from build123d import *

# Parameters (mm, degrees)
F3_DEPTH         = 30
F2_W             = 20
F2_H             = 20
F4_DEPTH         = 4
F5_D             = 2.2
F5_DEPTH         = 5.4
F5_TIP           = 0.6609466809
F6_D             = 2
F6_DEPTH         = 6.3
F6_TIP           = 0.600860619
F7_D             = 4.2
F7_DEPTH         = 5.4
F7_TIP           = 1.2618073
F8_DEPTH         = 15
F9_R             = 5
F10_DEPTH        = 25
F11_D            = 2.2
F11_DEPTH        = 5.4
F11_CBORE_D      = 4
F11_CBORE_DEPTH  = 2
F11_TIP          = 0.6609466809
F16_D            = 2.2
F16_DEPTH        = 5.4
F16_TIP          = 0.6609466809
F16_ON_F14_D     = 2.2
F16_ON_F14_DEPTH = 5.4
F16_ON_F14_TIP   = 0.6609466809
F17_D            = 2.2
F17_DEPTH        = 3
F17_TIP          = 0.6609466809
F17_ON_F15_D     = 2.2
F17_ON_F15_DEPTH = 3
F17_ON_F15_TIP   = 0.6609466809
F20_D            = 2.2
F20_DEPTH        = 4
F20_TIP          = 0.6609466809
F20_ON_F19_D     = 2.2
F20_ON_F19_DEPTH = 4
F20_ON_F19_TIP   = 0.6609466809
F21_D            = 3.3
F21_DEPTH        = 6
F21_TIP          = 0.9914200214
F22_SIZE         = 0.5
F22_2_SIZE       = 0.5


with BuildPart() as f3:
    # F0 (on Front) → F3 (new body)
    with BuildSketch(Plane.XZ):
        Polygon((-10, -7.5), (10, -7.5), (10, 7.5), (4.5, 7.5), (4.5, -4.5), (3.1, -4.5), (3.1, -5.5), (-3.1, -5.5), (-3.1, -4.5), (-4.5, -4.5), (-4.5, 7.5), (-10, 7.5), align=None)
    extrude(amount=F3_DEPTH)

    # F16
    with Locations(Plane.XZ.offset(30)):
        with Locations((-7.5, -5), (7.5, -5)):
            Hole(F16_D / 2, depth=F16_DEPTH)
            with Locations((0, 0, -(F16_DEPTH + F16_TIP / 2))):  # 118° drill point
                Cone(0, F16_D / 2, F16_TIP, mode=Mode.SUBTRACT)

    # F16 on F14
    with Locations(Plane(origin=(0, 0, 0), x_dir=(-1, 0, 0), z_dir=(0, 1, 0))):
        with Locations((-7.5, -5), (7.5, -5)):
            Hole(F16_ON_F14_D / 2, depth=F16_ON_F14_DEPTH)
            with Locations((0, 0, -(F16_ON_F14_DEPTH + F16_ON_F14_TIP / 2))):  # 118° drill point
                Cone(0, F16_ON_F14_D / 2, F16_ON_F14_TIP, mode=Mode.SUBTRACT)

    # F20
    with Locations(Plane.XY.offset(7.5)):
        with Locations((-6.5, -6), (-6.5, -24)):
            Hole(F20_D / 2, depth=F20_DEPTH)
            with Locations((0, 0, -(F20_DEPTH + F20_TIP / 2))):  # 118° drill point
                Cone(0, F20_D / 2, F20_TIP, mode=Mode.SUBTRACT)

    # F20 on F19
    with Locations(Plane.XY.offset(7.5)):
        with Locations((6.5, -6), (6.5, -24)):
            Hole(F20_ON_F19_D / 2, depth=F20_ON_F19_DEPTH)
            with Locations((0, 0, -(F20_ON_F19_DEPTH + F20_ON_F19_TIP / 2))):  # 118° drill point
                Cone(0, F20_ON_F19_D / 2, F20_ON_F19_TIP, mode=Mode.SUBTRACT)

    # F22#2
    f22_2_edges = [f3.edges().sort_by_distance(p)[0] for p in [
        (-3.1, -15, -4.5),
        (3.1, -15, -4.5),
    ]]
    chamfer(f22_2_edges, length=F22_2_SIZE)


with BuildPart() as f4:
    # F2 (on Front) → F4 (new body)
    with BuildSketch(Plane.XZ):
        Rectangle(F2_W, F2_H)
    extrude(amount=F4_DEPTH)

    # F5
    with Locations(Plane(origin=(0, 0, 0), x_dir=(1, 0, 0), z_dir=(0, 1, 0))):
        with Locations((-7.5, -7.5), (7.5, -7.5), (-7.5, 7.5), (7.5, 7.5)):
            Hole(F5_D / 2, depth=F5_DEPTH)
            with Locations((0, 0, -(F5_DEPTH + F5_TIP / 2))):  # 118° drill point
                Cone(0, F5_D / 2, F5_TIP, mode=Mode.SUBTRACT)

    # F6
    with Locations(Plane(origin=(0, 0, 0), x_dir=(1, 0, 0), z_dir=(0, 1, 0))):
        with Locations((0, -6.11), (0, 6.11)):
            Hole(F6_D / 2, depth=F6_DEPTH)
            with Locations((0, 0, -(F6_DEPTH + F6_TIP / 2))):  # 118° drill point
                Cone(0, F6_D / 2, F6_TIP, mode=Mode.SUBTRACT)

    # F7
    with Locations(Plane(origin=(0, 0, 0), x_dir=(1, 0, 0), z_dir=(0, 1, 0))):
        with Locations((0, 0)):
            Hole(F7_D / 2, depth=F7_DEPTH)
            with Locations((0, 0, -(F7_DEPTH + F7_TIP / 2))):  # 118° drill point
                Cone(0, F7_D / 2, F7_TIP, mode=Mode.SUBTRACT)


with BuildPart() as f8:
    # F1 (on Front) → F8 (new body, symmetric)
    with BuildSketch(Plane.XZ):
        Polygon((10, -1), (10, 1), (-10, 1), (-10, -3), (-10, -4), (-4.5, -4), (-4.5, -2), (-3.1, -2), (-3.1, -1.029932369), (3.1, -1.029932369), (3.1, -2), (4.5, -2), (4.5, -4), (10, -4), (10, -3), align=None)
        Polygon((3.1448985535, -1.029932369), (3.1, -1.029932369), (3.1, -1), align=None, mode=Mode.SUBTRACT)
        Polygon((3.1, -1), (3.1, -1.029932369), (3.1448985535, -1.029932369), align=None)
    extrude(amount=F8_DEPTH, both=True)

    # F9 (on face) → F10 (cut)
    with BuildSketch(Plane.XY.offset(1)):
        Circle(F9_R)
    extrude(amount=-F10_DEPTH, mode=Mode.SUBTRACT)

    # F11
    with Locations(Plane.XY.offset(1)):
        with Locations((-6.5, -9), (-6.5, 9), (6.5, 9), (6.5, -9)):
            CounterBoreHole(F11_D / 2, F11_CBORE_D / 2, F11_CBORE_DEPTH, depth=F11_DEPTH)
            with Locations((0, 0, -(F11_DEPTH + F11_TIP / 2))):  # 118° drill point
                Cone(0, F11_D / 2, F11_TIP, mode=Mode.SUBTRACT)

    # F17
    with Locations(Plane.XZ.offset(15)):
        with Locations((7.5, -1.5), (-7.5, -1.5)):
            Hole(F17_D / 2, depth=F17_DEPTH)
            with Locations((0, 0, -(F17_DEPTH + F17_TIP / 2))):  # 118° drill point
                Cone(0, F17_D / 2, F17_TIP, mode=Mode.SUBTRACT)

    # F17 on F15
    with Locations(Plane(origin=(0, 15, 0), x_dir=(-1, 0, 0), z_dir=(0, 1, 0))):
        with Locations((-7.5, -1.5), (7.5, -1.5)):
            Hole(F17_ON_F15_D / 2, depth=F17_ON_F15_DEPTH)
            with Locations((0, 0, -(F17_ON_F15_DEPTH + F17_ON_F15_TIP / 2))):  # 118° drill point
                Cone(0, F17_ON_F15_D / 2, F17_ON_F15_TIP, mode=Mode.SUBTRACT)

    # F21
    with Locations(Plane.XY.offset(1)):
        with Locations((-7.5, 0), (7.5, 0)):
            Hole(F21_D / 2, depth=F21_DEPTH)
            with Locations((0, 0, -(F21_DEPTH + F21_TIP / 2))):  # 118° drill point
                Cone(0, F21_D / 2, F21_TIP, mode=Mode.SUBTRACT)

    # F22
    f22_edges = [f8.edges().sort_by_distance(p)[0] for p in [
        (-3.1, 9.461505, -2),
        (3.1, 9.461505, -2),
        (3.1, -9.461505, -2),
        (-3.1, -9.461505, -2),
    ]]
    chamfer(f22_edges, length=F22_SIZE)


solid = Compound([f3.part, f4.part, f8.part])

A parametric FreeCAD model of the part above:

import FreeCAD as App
import Part
import Sketcher
from FreeCAD import Vector


def edges_at(feature, points):
    """Names of the edges that pass closest to the given points."""
    edges = feature.Shape.Edges
    near = lambda p: min(range(len(edges)), key=lambda i: edges[i].distToShape(Part.Vertex(*p))[0])
    return sorted({f"Edge{near(p) + 1}" for p in points})


def add_polygon(sketch, points):
    """Adds a closed chain of lines whose ends are joined by coincident constraints."""
    first, n = sketch.GeometryCount, len(points)
    for a, b in zip(points, points[1:] + points[:1]):
        sketch.addGeometry(Part.LineSegment(App.Vector(*a, 0), App.Vector(*b, 0)), False)
    for i in range(n):
        sketch.addConstraint(Sketcher.Constraint("Coincident", first + i, 2, first + (i + 1) % n, 1))

doc = App.newDocument("Part")
body = doc.addObject("PartDesign::Body", "Body")

sketch1 = body.newObject("Sketcher::SketchObject", "Sketch")
sketch1.AttachmentSupport = (doc.getObject("XZ_Plane"), [""])
sketch1.MapMode = "FlatFace"
add_polygon(sketch1, [(-10, -7.5), (10, -7.5), (10, 7.5), (4.5, 7.5), (4.5, -4.5), (3.1, -4.5), (3.1, -5.5), (-3.1, -5.5), (-3.1, -4.5), (-4.5, -4.5), (-4.5, 7.5), (-10, 7.5)])
sketch1.addConstraint(Sketcher.Constraint("Horizontal", 0))
sketch1.addConstraint(Sketcher.Constraint("Vertical", 1))
sketch1.addConstraint(Sketcher.Constraint("Horizontal", 2))
sketch1.addConstraint(Sketcher.Constraint("Vertical", 3))
sketch1.addConstraint(Sketcher.Constraint("Horizontal", 4))
sketch1.addConstraint(Sketcher.Constraint("Vertical", 5))
sketch1.addConstraint(Sketcher.Constraint("Horizontal", 6))
sketch1.addConstraint(Sketcher.Constraint("Vertical", 7))
sketch1.addConstraint(Sketcher.Constraint("Horizontal", 8))
sketch1.addConstraint(Sketcher.Constraint("Vertical", 9))
sketch1.addConstraint(Sketcher.Constraint("Horizontal", 10))
sketch1.addConstraint(Sketcher.Constraint("Vertical", 11))
sketch1.addConstraint(Sketcher.Constraint("Symmetric", 0, 2, 10, 2, -1, 1))
sketch1.addConstraint(Sketcher.Constraint("Symmetric", 4, 2, 7, 2, -2))
sketch1.addConstraint(Sketcher.Constraint("Symmetric", 2, 2, 9, 2, -2))
sketch1.addConstraint(Sketcher.Constraint("DistanceX", 0, 1, 0, 2, 20.0))
sketch1.addConstraint(Sketcher.Constraint("DistanceY", 1, 1, 1, 2, 15.0))
sketch1.addConstraint(Sketcher.Constraint("DistanceY", 3, 2, 3, 1, 12.0))
sketch1.addConstraint(Sketcher.Constraint("DistanceY", 5, 2, 5, 1, 1.0))
sketch1.addConstraint(Sketcher.Constraint("DistanceX", 2, 2, 2, 1, 5.5))
sketch1.addConstraint(Sketcher.Constraint("DistanceX", 4, 2, 4, 1, 1.4))
pad1 = body.newObject("PartDesign::Pad", "Pad")
pad1.Profile = sketch1
pad1.Length = 30

sketch2 = body.newObject("Sketcher::SketchObject", "Sketch001")
sketch2.AttachmentSupport = (doc.getObject("XZ_Plane"), [""])
sketch2.MapMode = "FlatFace"
sketch2.AttachmentOffset = App.Placement(Vector(0, 0, 30), App.Rotation())
sketch2.addGeometry(Part.Circle(Vector(-7.5, -5, 0), Vector(0, 0, 1), 1.1), False)
sketch2.addGeometry(Part.Circle(Vector(7.5, -5, 0), Vector(0, 0, 1), 1.1), False)
sketch2.addConstraint(Sketcher.Constraint("Equal", 0, 1))
sketch2.addConstraint(Sketcher.Constraint("Symmetric", 0, 3, 1, 3, -2))
sketch2.addConstraint(Sketcher.Constraint("Diameter", 0, 2.2))
sketch2.addConstraint(Sketcher.Constraint("DistanceY", 0, 3, -1, 1, 5.0))
sketch2.addConstraint(Sketcher.Constraint("DistanceX", 0, 3, 1, 3, 15.0))
doc.recompute()
hole = body.newObject("PartDesign::Hole", "Hole")
hole.Profile = sketch2
hole.ThreadType = "None"
hole.Diameter = 2.2
hole.DepthType = "Dimension"
hole.Depth = 5.4
hole.DrillPoint = "Angled"
hole.DrillPointAngle = 118

sketch3 = body.newObject("Sketcher::SketchObject", "Sketch002")
sketch3.AttachmentSupport = (doc.getObject("XZ_Plane"), [""])
sketch3.MapMode = "FlatFace"
sketch3.addGeometry(Part.Circle(Vector(7.5, -5, 0), Vector(0, 0, 1), 1.1), False)
sketch3.addGeometry(Part.Circle(Vector(-7.5, -5, 0), Vector(0, 0, 1), 1.1), False)
sketch3.addConstraint(Sketcher.Constraint("Equal", 0, 1))
sketch3.addConstraint(Sketcher.Constraint("Symmetric", 0, 3, 1, 3, -2))
sketch3.addConstraint(Sketcher.Constraint("Diameter", 0, 2.2))
sketch3.addConstraint(Sketcher.Constraint("DistanceY", 0, 3, -1, 1, 5.0))
sketch3.addConstraint(Sketcher.Constraint("DistanceX", 1, 3, 0, 3, 15.0))
doc.recompute()
hole2 = body.newObject("PartDesign::Hole", "Hole001")
hole2.Profile = sketch3
hole2.ThreadType = "None"
hole2.Diameter = 2.2
hole2.DepthType = "Dimension"
hole2.Depth = 5.4
hole2.DrillPoint = "Angled"
hole2.DrillPointAngle = 118
hole2.Reversed = True

sketch4 = body.newObject("Sketcher::SketchObject", "Sketch003")
sketch4.AttachmentSupport = (doc.getObject("XY_Plane"), [""])
sketch4.MapMode = "FlatFace"
sketch4.AttachmentOffset = App.Placement(Vector(0, 0, 7.5), App.Rotation())
sketch4.addGeometry(Part.Circle(Vector(-6.5, -6, 0), Vector(0, 0, 1), 1.1), False)
sketch4.addGeometry(Part.Circle(Vector(-6.5, -24, 0), Vector(0, 0, 1), 1.1), False)
sketch4.addConstraint(Sketcher.Constraint("Equal", 0, 1))
sketch4.addConstraint(Sketcher.Constraint("Vertical", 0, 3, 1, 3))
sketch4.addConstraint(Sketcher.Constraint("Diameter", 0, 2.2))
sketch4.addConstraint(Sketcher.Constraint("DistanceY", 0, 3, -1, 1, 6.0))
sketch4.addConstraint(Sketcher.Constraint("DistanceY", 1, 3, -1, 1, 24.0))
sketch4.addConstraint(Sketcher.Constraint("DistanceX", 0, 3, -1, 1, 6.5))
doc.recompute()
hole3 = body.newObject("PartDesign::Hole", "Hole002")
hole3.Profile = sketch4
hole3.ThreadType = "None"
hole3.Diameter = 2.2
hole3.DepthType = "Dimension"
hole3.Depth = 4
hole3.DrillPoint = "Angled"
hole3.DrillPointAngle = 118

sketch5 = body.newObject("Sketcher::SketchObject", "Sketch004")
sketch5.AttachmentSupport = (doc.getObject("XY_Plane"), [""])
sketch5.MapMode = "FlatFace"
sketch5.AttachmentOffset = App.Placement(Vector(0, 0, 7.5), App.Rotation())
sketch5.addGeometry(Part.Circle(Vector(6.5, -6, 0), Vector(0, 0, 1), 1.1), False)
sketch5.addGeometry(Part.Circle(Vector(6.5, -24, 0), Vector(0, 0, 1), 1.1), False)
sketch5.addConstraint(Sketcher.Constraint("Equal", 0, 1))
sketch5.addConstraint(Sketcher.Constraint("Vertical", 0, 3, 1, 3))
sketch5.addConstraint(Sketcher.Constraint("Diameter", 0, 2.2))
sketch5.addConstraint(Sketcher.Constraint("DistanceY", 0, 3, -1, 1, 6.0))
sketch5.addConstraint(Sketcher.Constraint("DistanceY", 1, 3, -1, 1, 24.0))
sketch5.addConstraint(Sketcher.Constraint("DistanceX", -1, 1, 0, 3, 6.5))
doc.recompute()
hole4 = body.newObject("PartDesign::Hole", "Hole003")
hole4.Profile = sketch5
hole4.ThreadType = "None"
hole4.Diameter = 2.2
hole4.DepthType = "Dimension"
hole4.Depth = 4
hole4.DrillPoint = "Angled"
hole4.DrillPointAngle = 118
doc.recompute()

chamfer = body.newObject("PartDesign::Chamfer", "Chamfer")
chamfer.Base = (hole4, edges_at(hole4, [(-3.1, -15, -4.5), (3.1, -15, -4.5)]))
chamfer.Size = 0.5
body2 = doc.addObject("PartDesign::Body", "Body001")

sketch6 = body2.newObject("Sketcher::SketchObject", "Sketch005")
sketch6.AttachmentSupport = (doc.getObject("XZ_Plane001"), [""])
sketch6.MapMode = "FlatFace"
add_polygon(sketch6, [(-10, 10), (-10, -10), (10, -10), (10, 10)])
sketch6.addConstraint(Sketcher.Constraint("Vertical", 0))
sketch6.addConstraint(Sketcher.Constraint("Horizontal", 1))
sketch6.addConstraint(Sketcher.Constraint("Vertical", 2))
sketch6.addConstraint(Sketcher.Constraint("Horizontal", 3))
sketch6.addConstraint(Sketcher.Constraint("Symmetric", 0, 2, 2, 2, -1, 1))
sketch6.addConstraint(Sketcher.Constraint("Equal", 3, 0))
sketch6.addConstraint(Sketcher.Constraint("DistanceX", 1, 1, 1, 2, 20.0))
pad2 = body2.newObject("PartDesign::Pad", "Pad001")
pad2.Profile = sketch6
pad2.Length = 4

sketch7 = body2.newObject("Sketcher::SketchObject", "Sketch006")
sketch7.AttachmentSupport = (doc.getObject("XZ_Plane001"), [""])
sketch7.MapMode = "FlatFace"
sketch7.addGeometry(Part.Circle(Vector(-7.5, 7.5, 0), Vector(0, 0, 1), 1.1), False)
sketch7.addGeometry(Part.Circle(Vector(7.5, 7.5, 0), Vector(0, 0, 1), 1.1), False)
sketch7.addGeometry(Part.Circle(Vector(-7.5, -7.5, 0), Vector(0, 0, 1), 1.1), False)
sketch7.addGeometry(Part.Circle(Vector(7.5, -7.5, 0), Vector(0, 0, 1), 1.1), False)
sketch7.addConstraint(Sketcher.Constraint("Equal", 0, 1))
sketch7.addConstraint(Sketcher.Constraint("Equal", 1, 2))
sketch7.addConstraint(Sketcher.Constraint("Equal", 2, 3))
sketch7.addConstraint(Sketcher.Constraint("Symmetric", 1, 3, 2, 3, -1, 1))
sketch7.addConstraint(Sketcher.Constraint("Symmetric", 0, 3, 3, 3, -1, 1))
sketch7.addConstraint(Sketcher.Constraint("Symmetric", 0, 3, 1, 3, -2))
sketch7.addConstraint(Sketcher.Constraint("Diameter", 0, 2.2))
sketch7.addConstraint(Sketcher.Constraint("DistanceX", 0, 3, 1, 3, 15.0))
sketch7.addConstraint(Sketcher.Constraint("DistanceY", 2, 3, 0, 3, 15.0))
doc.recompute()
hole5 = body2.newObject("PartDesign::Hole", "Hole004")
hole5.Profile = sketch7
hole5.ThreadType = "None"
hole5.Diameter = 2.2
hole5.DepthType = "Dimension"
hole5.Depth = 5.4
hole5.DrillPoint = "Angled"
hole5.DrillPointAngle = 118
hole5.Reversed = True

sketch8 = body2.newObject("Sketcher::SketchObject", "Sketch007")
sketch8.AttachmentSupport = (doc.getObject("XZ_Plane001"), [""])
sketch8.MapMode = "FlatFace"
sketch8.addGeometry(Part.Circle(Vector(0, 6.11, 0), Vector(0, 0, 1), 1), False)
sketch8.addGeometry(Part.Circle(Vector(0, -6.11, 0), Vector(0, 0, 1), 1), False)
sketch8.addConstraint(Sketcher.Constraint("Equal", 0, 1))
sketch8.addConstraint(Sketcher.Constraint("Symmetric", 0, 3, 1, 3, -1, 1))
sketch8.addConstraint(Sketcher.Constraint("PointOnObject", 0, 3, -2))
sketch8.addConstraint(Sketcher.Constraint("Diameter", 0, 2.0))
sketch8.addConstraint(Sketcher.Constraint("DistanceY", -1, 1, 0, 3, 6.11))
doc.recompute()
hole6 = body2.newObject("PartDesign::Hole", "Hole005")
hole6.Profile = sketch8
hole6.ThreadType = "None"
hole6.Diameter = 2
hole6.DepthType = "Dimension"
hole6.Depth = 6.3
hole6.DrillPoint = "Angled"
hole6.DrillPointAngle = 118
hole6.Reversed = True

sketch9 = body2.newObject("Sketcher::SketchObject", "Sketch008")
sketch9.AttachmentSupport = (doc.getObject("XZ_Plane001"), [""])
sketch9.MapMode = "FlatFace"
sketch9.addGeometry(Part.Circle(Vector(0, 0, 0), Vector(0, 0, 1), 2.1), False)
sketch9.addConstraint(Sketcher.Constraint("Coincident", 0, 3, -1, 1))
sketch9.addConstraint(Sketcher.Constraint("Diameter", 0, 4.2))
doc.recompute()
hole7 = body2.newObject("PartDesign::Hole", "Hole006")
hole7.Profile = sketch9
hole7.ThreadType = "None"
hole7.Diameter = 4.2
hole7.DepthType = "Dimension"
hole7.Depth = 5.4
hole7.DrillPoint = "Angled"
hole7.DrillPointAngle = 118
hole7.Reversed = True
body3 = doc.addObject("PartDesign::Body", "Body002")

sketch10 = body3.newObject("Sketcher::SketchObject", "Sketch009")
sketch10.AttachmentSupport = (doc.getObject("XZ_Plane002"), [""])
sketch10.MapMode = "FlatFace"
add_polygon(sketch10, [(4.5, -4), (10, -4), (10, 1), (-10, 1), (-10, -4), (-4.5, -4), (-4.5, -2), (-3.1, -2), (-3.1, -1.029932), (3.1, -1.029932), (3.1, -2), (4.5, -2)])
sketch10.addConstraint(Sketcher.Constraint("Horizontal", 0))
sketch10.addConstraint(Sketcher.Constraint("Vertical", 1))
sketch10.addConstraint(Sketcher.Constraint("Horizontal", 2))
sketch10.addConstraint(Sketcher.Constraint("Vertical", 3))
sketch10.addConstraint(Sketcher.Constraint("Horizontal", 4))
sketch10.addConstraint(Sketcher.Constraint("Vertical", 5))
sketch10.addConstraint(Sketcher.Constraint("Horizontal", 6))
sketch10.addConstraint(Sketcher.Constraint("Vertical", 7))
sketch10.addConstraint(Sketcher.Constraint("Horizontal", 8))
sketch10.addConstraint(Sketcher.Constraint("Vertical", 9))
sketch10.addConstraint(Sketcher.Constraint("Horizontal", 10))
sketch10.addConstraint(Sketcher.Constraint("Vertical", 11))
sketch10.addConstraint(Sketcher.Constraint("Symmetric", 0, 2, 3, 2, -2))
sketch10.addConstraint(Sketcher.Constraint("Symmetric", 6, 2, 9, 2, -2))
sketch10.addConstraint(Sketcher.Constraint("Equal", 0, 4))
sketch10.addConstraint(Sketcher.Constraint("DistanceX", 2, 2, 2, 1, 20.0))
sketch10.addConstraint(Sketcher.Constraint("DistanceY", 1, 1, 1, 2, 5.0))
sketch10.addConstraint(Sketcher.Constraint("DistanceY", 5, 1, 5, 2, 2.0))
sketch10.addConstraint(Sketcher.Constraint("DistanceX", 0, 1, 0, 2, 5.5))
sketch10.addConstraint(Sketcher.Constraint("DistanceX", 6, 1, 6, 2, 1.4))
sketch10.addConstraint(Sketcher.Constraint("DistanceY", 0, 2, -1, 1, 4.0))
sketch10.addConstraint(Sketcher.Constraint("DistanceY", 7, 1, 7, 2, 0.970068))
pad3 = body3.newObject("PartDesign::Pad", "Pad002")
pad3.Profile = sketch10
pad3.Length = 30
pad3.Midplane = True

sketch11 = body3.newObject("Sketcher::SketchObject", "Sketch010")
sketch11.AttachmentSupport = (doc.getObject("XY_Plane002"), [""])
sketch11.MapMode = "FlatFace"
sketch11.AttachmentOffset = App.Placement(Vector(0, 0, 1), App.Rotation())
sketch11.addGeometry(Part.Circle(Vector(0, 0, 0), Vector(0, 0, 1), 5), False)
sketch11.addConstraint(Sketcher.Constraint("Coincident", 0, 3, -1, 1))
sketch11.addConstraint(Sketcher.Constraint("Diameter", 0, 10.0))
pocket1 = body3.newObject("PartDesign::Pocket", "Pocket")
pocket1.Profile = sketch11
pocket1.Length = 25

sketch12 = body3.newObject("Sketcher::SketchObject", "Sketch011")
sketch12.AttachmentSupport = (doc.getObject("XY_Plane002"), [""])
sketch12.MapMode = "FlatFace"
sketch12.AttachmentOffset = App.Placement(Vector(0, 0, 1), App.Rotation())
sketch12.addGeometry(Part.Circle(Vector(-6.5, -9, 0), Vector(0, 0, 1), 1.1), False)
sketch12.addGeometry(Part.Circle(Vector(-6.5, 9, 0), Vector(0, 0, 1), 1.1), False)
sketch12.addGeometry(Part.Circle(Vector(6.5, 9, 0), Vector(0, 0, 1), 1.1), False)
sketch12.addGeometry(Part.Circle(Vector(6.5, -9, 0), Vector(0, 0, 1), 1.1), False)
sketch12.addConstraint(Sketcher.Constraint("Equal", 0, 1))
sketch12.addConstraint(Sketcher.Constraint("Equal", 1, 2))
sketch12.addConstraint(Sketcher.Constraint("Equal", 2, 3))
sketch12.addConstraint(Sketcher.Constraint("Symmetric", 0, 3, 2, 3, -1, 1))
sketch12.addConstraint(Sketcher.Constraint("Symmetric", 1, 3, 3, 3, -1, 1))
sketch12.addConstraint(Sketcher.Constraint("Symmetric", 1, 3, 2, 3, -2))
sketch12.addConstraint(Sketcher.Constraint("Diameter", 0, 2.2))
sketch12.addConstraint(Sketcher.Constraint("DistanceY", 0, 3, -1, 1, 9.0))
sketch12.addConstraint(Sketcher.Constraint("DistanceX", 1, 3, 2, 3, 13.0))
doc.recompute()
hole8 = body3.newObject("PartDesign::Hole", "Hole007")
hole8.Profile = sketch12
hole8.ThreadType = "None"
hole8.Diameter = 2.2
hole8.DepthType = "Dimension"
hole8.Depth = 5.4
hole8.DrillPoint = "Angled"
hole8.DrillPointAngle = 118
hole8.HoleCutType = "Counterbore"
hole8.HoleCutDiameter = 4
hole8.HoleCutDepth = 2

sketch13 = body3.newObject("Sketcher::SketchObject", "Sketch012")
sketch13.AttachmentSupport = (doc.getObject("XZ_Plane002"), [""])
sketch13.MapMode = "FlatFace"
sketch13.AttachmentOffset = App.Placement(Vector(0, 0, 15), App.Rotation())
sketch13.addGeometry(Part.Circle(Vector(7.5, -1.5, 0), Vector(0, 0, 1), 1.1), False)
sketch13.addGeometry(Part.Circle(Vector(-7.5, -1.5, 0), Vector(0, 0, 1), 1.1), False)
sketch13.addConstraint(Sketcher.Constraint("Equal", 0, 1))
sketch13.addConstraint(Sketcher.Constraint("Symmetric", 0, 3, 1, 3, -2))
sketch13.addConstraint(Sketcher.Constraint("Diameter", 0, 2.2))
sketch13.addConstraint(Sketcher.Constraint("DistanceX", 1, 3, 0, 3, 15.0))
sketch13.addConstraint(Sketcher.Constraint("DistanceY", 0, 3, -1, 1, 1.5))
doc.recompute()
hole9 = body3.newObject("PartDesign::Hole", "Hole008")
hole9.Profile = sketch13
hole9.ThreadType = "None"
hole9.Diameter = 2.2
hole9.DepthType = "Dimension"
hole9.Depth = 3
hole9.DrillPoint = "Angled"
hole9.DrillPointAngle = 118

sketch14 = body3.newObject("Sketcher::SketchObject", "Sketch013")
sketch14.AttachmentSupport = (doc.getObject("XZ_Plane002"), [""])
sketch14.MapMode = "FlatFace"
sketch14.AttachmentOffset = App.Placement(Vector(0, 0, -15), App.Rotation())
sketch14.addGeometry(Part.Circle(Vector(7.5, -1.5, 0), Vector(0, 0, 1), 1.1), False)
sketch14.addGeometry(Part.Circle(Vector(-7.5, -1.5, 0), Vector(0, 0, 1), 1.1), False)
sketch14.addConstraint(Sketcher.Constraint("Equal", 0, 1))
sketch14.addConstraint(Sketcher.Constraint("Symmetric", 0, 3, 1, 3, -2))
sketch14.addConstraint(Sketcher.Constraint("Diameter", 0, 2.2))
sketch14.addConstraint(Sketcher.Constraint("DistanceX", 1, 3, 0, 3, 15.0))
sketch14.addConstraint(Sketcher.Constraint("DistanceY", 0, 3, -1, 1, 1.5))
doc.recompute()
hole10 = body3.newObject("PartDesign::Hole", "Hole009")
hole10.Profile = sketch14
hole10.ThreadType = "None"
hole10.Diameter = 2.2
hole10.DepthType = "Dimension"
hole10.Depth = 3
hole10.DrillPoint = "Angled"
hole10.DrillPointAngle = 118
hole10.Reversed = True

sketch15 = body3.newObject("Sketcher::SketchObject", "Sketch014")
sketch15.AttachmentSupport = (doc.getObject("XY_Plane002"), [""])
sketch15.MapMode = "FlatFace"
sketch15.AttachmentOffset = App.Placement(Vector(0, 0, 1), App.Rotation())
sketch15.addGeometry(Part.Circle(Vector(-7.5, 0, 0), Vector(0, 0, 1), 1.65), False)
sketch15.addGeometry(Part.Circle(Vector(7.5, 0, 0), Vector(0, 0, 1), 1.65), False)
sketch15.addConstraint(Sketcher.Constraint("Equal", 0, 1))
sketch15.addConstraint(Sketcher.Constraint("Symmetric", 0, 3, 1, 3, -1, 1))
sketch15.addConstraint(Sketcher.Constraint("PointOnObject", 0, 3, -1))
sketch15.addConstraint(Sketcher.Constraint("Diameter", 0, 3.3))
sketch15.addConstraint(Sketcher.Constraint("DistanceX", 0, 3, 1, 3, 15.0))
doc.recompute()
hole11 = body3.newObject("PartDesign::Hole", "Hole010")
hole11.Profile = sketch15
hole11.ThreadType = "None"
hole11.Diameter = 3.3
hole11.DepthType = "Dimension"
hole11.Depth = 6
hole11.DrillPoint = "Angled"
hole11.DrillPointAngle = 118
doc.recompute()

chamfer2 = body3.newObject("PartDesign::Chamfer", "Chamfer001")
chamfer2.Base = (hole11, edges_at(hole11, [
    (-3.1, 9.462, -2),
    (3.1, 9.462, -2),
    (3.1, -9.462, -2),
    (-3.1, -9.462, -2),
]))
chamfer2.Size = 0.5

doc.recompute()
